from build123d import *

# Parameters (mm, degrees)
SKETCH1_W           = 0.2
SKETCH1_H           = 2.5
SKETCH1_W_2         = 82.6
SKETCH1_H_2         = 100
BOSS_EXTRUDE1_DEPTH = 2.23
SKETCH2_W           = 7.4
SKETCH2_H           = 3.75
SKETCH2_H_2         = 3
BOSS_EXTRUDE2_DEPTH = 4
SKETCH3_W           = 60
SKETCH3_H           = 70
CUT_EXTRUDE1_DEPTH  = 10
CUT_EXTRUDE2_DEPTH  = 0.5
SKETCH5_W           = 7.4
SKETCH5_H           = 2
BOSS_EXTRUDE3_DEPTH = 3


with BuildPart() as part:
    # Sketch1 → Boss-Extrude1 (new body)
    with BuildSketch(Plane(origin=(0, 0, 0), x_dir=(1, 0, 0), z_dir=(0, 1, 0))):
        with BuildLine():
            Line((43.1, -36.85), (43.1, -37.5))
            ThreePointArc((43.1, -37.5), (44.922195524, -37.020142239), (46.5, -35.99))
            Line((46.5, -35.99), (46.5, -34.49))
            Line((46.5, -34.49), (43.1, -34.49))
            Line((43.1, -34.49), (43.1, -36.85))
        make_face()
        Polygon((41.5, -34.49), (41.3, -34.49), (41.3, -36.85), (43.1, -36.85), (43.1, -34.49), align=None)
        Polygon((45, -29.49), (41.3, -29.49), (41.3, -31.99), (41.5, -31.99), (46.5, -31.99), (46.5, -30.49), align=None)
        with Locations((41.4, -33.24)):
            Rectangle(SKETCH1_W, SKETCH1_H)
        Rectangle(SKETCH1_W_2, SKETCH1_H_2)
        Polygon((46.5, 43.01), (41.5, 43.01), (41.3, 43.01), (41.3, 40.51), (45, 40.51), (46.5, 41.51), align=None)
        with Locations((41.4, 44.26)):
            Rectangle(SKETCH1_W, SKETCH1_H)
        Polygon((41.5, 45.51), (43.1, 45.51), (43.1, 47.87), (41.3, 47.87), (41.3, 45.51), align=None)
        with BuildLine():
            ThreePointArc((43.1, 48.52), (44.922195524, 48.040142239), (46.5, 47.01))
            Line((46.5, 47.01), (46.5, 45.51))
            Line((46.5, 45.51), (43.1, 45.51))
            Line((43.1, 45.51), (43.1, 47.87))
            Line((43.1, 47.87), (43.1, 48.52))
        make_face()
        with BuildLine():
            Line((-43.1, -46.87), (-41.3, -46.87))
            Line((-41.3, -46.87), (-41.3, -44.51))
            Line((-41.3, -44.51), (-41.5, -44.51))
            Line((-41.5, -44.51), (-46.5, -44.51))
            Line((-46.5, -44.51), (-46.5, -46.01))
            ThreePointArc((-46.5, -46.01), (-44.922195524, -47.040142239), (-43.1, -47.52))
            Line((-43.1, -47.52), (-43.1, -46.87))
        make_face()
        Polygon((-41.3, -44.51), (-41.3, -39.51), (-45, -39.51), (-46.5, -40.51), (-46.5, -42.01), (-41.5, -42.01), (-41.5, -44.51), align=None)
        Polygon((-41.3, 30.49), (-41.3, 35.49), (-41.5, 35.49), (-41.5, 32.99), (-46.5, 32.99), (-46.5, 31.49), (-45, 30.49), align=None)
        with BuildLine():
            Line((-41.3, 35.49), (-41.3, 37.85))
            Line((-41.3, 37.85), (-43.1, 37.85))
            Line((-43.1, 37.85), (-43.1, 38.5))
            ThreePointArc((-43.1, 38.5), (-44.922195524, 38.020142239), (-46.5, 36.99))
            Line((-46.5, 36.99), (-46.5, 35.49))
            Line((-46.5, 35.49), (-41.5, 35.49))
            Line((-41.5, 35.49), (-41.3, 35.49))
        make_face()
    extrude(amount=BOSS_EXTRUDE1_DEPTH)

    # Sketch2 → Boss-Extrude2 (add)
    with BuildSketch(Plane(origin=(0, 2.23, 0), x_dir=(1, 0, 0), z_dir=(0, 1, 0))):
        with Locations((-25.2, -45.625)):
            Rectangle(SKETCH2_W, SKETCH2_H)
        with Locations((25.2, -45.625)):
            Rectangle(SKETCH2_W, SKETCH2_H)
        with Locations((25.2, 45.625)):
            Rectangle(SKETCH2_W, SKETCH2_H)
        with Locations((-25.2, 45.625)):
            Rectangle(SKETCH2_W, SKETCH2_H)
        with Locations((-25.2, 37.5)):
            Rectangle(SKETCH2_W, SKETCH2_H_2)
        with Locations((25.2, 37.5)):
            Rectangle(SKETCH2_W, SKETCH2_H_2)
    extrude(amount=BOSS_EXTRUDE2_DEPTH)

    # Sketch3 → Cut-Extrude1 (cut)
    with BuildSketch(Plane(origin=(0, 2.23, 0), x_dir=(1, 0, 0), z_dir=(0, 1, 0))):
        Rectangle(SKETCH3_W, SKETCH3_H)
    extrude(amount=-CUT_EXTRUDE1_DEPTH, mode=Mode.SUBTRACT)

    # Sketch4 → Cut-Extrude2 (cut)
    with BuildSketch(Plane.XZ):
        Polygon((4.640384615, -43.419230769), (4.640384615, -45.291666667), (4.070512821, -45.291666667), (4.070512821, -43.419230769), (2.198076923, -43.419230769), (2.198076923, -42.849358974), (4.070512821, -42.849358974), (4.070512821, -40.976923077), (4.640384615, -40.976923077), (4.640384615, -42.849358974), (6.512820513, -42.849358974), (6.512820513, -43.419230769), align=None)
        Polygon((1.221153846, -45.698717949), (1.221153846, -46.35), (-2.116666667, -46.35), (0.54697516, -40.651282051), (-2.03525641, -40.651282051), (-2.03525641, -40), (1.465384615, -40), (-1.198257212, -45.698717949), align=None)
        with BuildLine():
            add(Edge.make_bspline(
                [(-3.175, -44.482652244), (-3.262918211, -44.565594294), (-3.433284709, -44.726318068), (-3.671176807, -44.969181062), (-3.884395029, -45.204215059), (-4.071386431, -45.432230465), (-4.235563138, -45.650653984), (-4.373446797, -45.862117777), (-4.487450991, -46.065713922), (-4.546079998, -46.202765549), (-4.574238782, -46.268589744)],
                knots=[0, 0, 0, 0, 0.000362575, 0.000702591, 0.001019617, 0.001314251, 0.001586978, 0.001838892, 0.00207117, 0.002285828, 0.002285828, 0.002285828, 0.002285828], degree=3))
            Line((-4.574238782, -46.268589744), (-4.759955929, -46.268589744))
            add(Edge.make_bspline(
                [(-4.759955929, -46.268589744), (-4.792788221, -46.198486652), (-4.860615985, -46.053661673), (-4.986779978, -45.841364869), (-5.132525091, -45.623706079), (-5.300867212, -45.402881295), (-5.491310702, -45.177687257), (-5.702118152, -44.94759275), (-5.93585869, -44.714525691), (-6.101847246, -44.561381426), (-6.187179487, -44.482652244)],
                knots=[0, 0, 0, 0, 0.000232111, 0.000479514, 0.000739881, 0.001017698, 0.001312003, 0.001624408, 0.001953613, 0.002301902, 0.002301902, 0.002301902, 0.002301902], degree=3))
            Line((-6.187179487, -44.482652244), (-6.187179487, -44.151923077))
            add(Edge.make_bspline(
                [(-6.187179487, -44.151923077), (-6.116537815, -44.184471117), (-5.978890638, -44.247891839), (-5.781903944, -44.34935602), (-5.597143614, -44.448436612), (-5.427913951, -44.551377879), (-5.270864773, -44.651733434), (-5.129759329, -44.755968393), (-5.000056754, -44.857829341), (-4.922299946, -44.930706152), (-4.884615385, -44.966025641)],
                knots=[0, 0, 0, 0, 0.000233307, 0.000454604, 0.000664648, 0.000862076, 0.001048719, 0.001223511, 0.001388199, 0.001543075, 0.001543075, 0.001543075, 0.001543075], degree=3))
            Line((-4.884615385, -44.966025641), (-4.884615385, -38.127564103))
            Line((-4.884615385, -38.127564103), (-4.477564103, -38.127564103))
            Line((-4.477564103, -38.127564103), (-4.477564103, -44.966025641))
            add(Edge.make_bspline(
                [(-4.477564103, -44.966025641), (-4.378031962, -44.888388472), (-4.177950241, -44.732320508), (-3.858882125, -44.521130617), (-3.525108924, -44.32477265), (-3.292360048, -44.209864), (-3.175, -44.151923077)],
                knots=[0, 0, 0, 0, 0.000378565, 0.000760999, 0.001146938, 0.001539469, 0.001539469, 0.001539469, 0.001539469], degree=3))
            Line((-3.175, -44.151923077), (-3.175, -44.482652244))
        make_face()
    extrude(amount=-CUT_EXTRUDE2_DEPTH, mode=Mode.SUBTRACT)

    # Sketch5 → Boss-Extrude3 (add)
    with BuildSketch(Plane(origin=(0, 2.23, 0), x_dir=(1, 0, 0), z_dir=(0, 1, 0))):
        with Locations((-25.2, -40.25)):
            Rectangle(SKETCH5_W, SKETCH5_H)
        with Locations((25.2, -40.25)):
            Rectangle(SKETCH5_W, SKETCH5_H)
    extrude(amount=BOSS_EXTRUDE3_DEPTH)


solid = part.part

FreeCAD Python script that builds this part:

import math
import FreeCAD as App
import Part
import Sketcher

V = App.Vector
Q = App.Units.Quantity

doc = App.newDocument("Part")
body = doc.addObject("PartDesign::Body", "Body")

sketch1 = doc.addObject("Sketcher::SketchObject", "Sketch")
body.addObject(sketch1)
sketch1.AttachmentSupport = (doc.XZ_Plane, [""])
sketch1.MapMode = "FlatFace"
sketch1.addGeometry(Part.ArcOfCircle(Part.Circle(V(42.5, 31.6, 0), V(0, 0, 1), 5.9), math.radians(48), math.radians(84)), False)
sketch1.addGeometry(Part.LineSegment(V(46.5, 36, 0), V(46.5, 34.5, 0)), False)
sketch1.addGeometry(Part.LineSegment(V(46.5, 34.5, 0), V(41.5, 34.5, 0)), False)
sketch1.addGeometry(Part.LineSegment(V(41.5, 34.5, 0), V(41.5, 32, 0)), False)
sketch1.addGeometry(Part.LineSegment(V(41.5, 32, 0), V(46.5, 32, 0)), False)
sketch1.addGeometry(Part.LineSegment(V(46.5, 32, 0), V(46.5, 30.5, 0)), False)
sketch1.addGeometry(Part.LineSegment(V(46.5, 30.5, 0), V(45, 29.5, 0)), False)
sketch1.addGeometry(Part.LineSegment(V(45, 29.5, 0), V(41.3, 29.5, 0)), False)
sketch1.addGeometry(Part.LineSegment(V(41.3, 29.5, 0), V(41.3, -40.5, 0)), False)
sketch1.addGeometry(Part.LineSegment(V(41.3, -40.5, 0), V(45, -40.5, 0)), False)
sketch1.addGeometry(Part.LineSegment(V(45, -40.5, 0), V(46.5, -41.5, 0)), False)
sketch1.addGeometry(Part.LineSegment(V(46.5, -41.5, 0), V(46.5, -43, 0)), False)
sketch1.addGeometry(Part.LineSegment(V(46.5, -43, 0), V(41.5, -43, 0)), False)
sketch1.addGeometry(Part.LineSegment(V(41.5, -43, 0), V(41.5, -45.5, 0)), False)
sketch1.addGeometry(Part.LineSegment(V(41.5, -45.5, 0), V(46.5, -45.5, 0)), False)
sketch1.addGeometry(Part.LineSegment(V(46.5, -45.5, 0), V(46.5, -47, 0)), False)
sketch1.addGeometry(Part.ArcOfCircle(Part.Circle(V(42.5, -42.7, 0), V(0, 0, 1), 5.9), math.radians(-84), math.radians(-48)), False)
sketch1.addGeometry(Part.LineSegment(V(43.1, -48.5, 0), V(43.1, -47.9, 0)), False)
sketch1.addGeometry(Part.LineSegment(V(43.1, -47.9, 0), V(41.3, -47.9, 0)), False)
sketch1.addGeometry(Part.LineSegment(V(41.3, -47.9, 0), V(41.3, -50, 0)), False)
sketch1.addGeometry(Part.LineSegment(V(41.3, -50, 0), V(-41.3, -50, 0)), False)
sketch1.addGeometry(Part.LineSegment(V(-41.3, -50, 0), V(-41.3, -37.9, 0)), False)
sketch1.addGeometry(Part.LineSegment(V(-41.3, -37.9, 0), V(-43.1, -37.9, 0)), False)
sketch1.addGeometry(Part.LineSegment(V(-43.1, -37.9, 0), V(-43.1, -38.5, 0)), False)
sketch1.addGeometry(Part.ArcOfCircle(Part.Circle(V(-42.5, -32.6, 0), V(0, 0, 1), 5.9), math.radians(-132), math.radians(-96)), False)
sketch1.addGeometry(Part.LineSegment(V(-46.5, -37, 0), V(-46.5, -35.5, 0)), False)
sketch1.addGeometry(Part.LineSegment(V(-46.5, -35.5, 0), V(-41.5, -35.5, 0)), False)
sketch1.addGeometry(Part.LineSegment(V(-41.5, -35.5, 0), V(-41.5, -33, 0)), False)
sketch1.addGeometry(Part.LineSegment(V(-41.5, -33, 0), V(-46.5, -33, 0)), False)
sketch1.addGeometry(Part.LineSegment(V(-46.5, -33, 0), V(-46.5, -31.5, 0)), False)
sketch1.addGeometry(Part.LineSegment(V(-46.5, -31.5, 0), V(-45, -30.5, 0)), False)
sketch1.addGeometry(Part.LineSegment(V(-45, -30.5, 0), V(-41.3, -30.5, 0)), False)
sketch1.addGeometry(Part.LineSegment(V(-41.3, -30.5, 0), V(-41.3, 39.5, 0)), False)
sketch1.addGeometry(Part.LineSegment(V(-41.3, 39.5, 0), V(-45, 39.5, 0)), False)
sketch1.addGeometry(Part.LineSegment(V(-45, 39.5, 0), V(-46.5, 40.5, 0)), False)
sketch1.addGeometry(Part.LineSegment(V(-46.5, 40.5, 0), V(-46.5, 42, 0)), False)
sketch1.addGeometry(Part.LineSegment(V(-46.5, 42, 0), V(-41.5, 42, 0)), False)
sketch1.addGeometry(Part.LineSegment(V(-41.5, 42, 0), V(-41.5, 44.5, 0)), False)
sketch1.addGeometry(Part.LineSegment(V(-41.5, 44.5, 0), V(-46.5, 44.5, 0)), False)
sketch1.addGeometry(Part.LineSegment(V(-46.5, 44.5, 0), V(-46.5, 46, 0)), False)
sketch1.addGeometry(Part.ArcOfCircle(Part.Circle(V(-42.5, 41.7, 0), V(0, 0, 1), 5.9), math.radians(96), math.radians(132)), False)
sketch1.addGeometry(Part.LineSegment(V(-43.1, 47.5, 0), V(-43.1, 46.9, 0)), False)
sketch1.addGeometry(Part.LineSegment(V(-43.1, 46.9, 0), V(-41.3, 46.9, 0)), False)
sketch1.addGeometry(Part.LineSegment(V(-41.3, 46.9, 0), V(-41.3, 50, 0)), False)
sketch1.addGeometry(Part.LineSegment(V(-41.3, 50, 0), V(41.3, 50, 0)), False)
sketch1.addGeometry(Part.LineSegment(V(41.3, 50, 0), V(41.3, 36.9, 0)), False)
sketch1.addGeometry(Part.LineSegment(V(41.3, 36.9, 0), V(43.1, 36.9, 0)), False)
sketch1.addGeometry(Part.LineSegment(V(43.1, 36.9, 0), V(43.1, 37.5, 0)), False)
sketch1.addConstraint(Sketcher.Constraint("Coincident", 0, 1, 1, 1))
sketch1.addConstraint(Sketcher.Constraint("Coincident", 1, 2, 2, 1))
sketch1.addConstraint(Sketcher.Constraint("Coincident", 2, 2, 3, 1))
sketch1.addConstraint(Sketcher.Constraint("Coincident", 3, 2, 4, 1))
sketch1.addConstraint(Sketcher.Constraint("Coincident", 4, 2, 5, 1))
sketch1.addConstraint(Sketcher.Constraint("Coincident", 5, 2, 6, 1))
sketch1.addConstraint(Sketcher.Constraint("Coincident", 6, 2, 7, 1))
sketch1.addConstraint(Sketcher.Constraint("Coincident", 7, 2, 8, 1))
sketch1.addConstraint(Sketcher.Constraint("Coincident", 8, 2, 9, 1))
sketch1.addConstraint(Sketcher.Constraint("Coincident", 9, 2, 10, 1))
sketch1.addConstraint(Sketcher.Constraint("Coincident", 10, 2, 11, 1))
sketch1.addConstraint(Sketcher.Constraint("Coincident", 11, 2, 12, 1))
sketch1.addConstraint(Sketcher.Constraint("Coincident", 12, 2, 13, 1))
sketch1.addConstraint(Sketcher.Constraint("Coincident", 13, 2, 14, 1))
sketch1.addConstraint(Sketcher.Constraint("Coincident", 14, 2, 15, 1))
sketch1.addConstraint(Sketcher.Constraint("Coincident", 15, 2, 16, 2))
sketch1.addConstraint(Sketcher.Constraint("Coincident", 16, 1, 17, 1))
sketch1.addConstraint(Sketcher.Constraint("Coincident", 17, 2, 18, 1))
sketch1.addConstraint(Sketcher.Constraint("Coincident", 18, 2, 19, 1))
sketch1.addConstraint(Sketcher.Constraint("Coincident", 19, 2, 20, 1))
sketch1.addConstraint(Sketcher.Constraint("Coincident", 20, 2, 21, 1))
sketch1.addConstraint(Sketcher.Constraint("Coincident", 21, 2, 22, 1))
sketch1.addConstraint(Sketcher.Constraint("Coincident", 22, 2, 23, 1))
sketch1.addConstraint(Sketcher.Constraint("Coincident", 23, 2, 24, 2))
sketch1.addConstraint(Sketcher.Constraint("Coincident", 24, 1, 25, 1))
sketch1.addConstraint(Sketcher.Constraint("Coincident", 25, 2, 26, 1))
sketch1.addConstraint(Sketcher.Constraint("Coincident", 26, 2, 27, 1))
sketch1.addConstraint(Sketcher.Constraint("Coincident", 27, 2, 28, 1))
sketch1.addConstraint(Sketcher.Constraint("Coincident", 28, 2, 29, 1))
sketch1.addConstraint(Sketcher.Constraint("Coincident", 29, 2, 30, 1))
sketch1.addConstraint(Sketcher.Constraint("Coincident", 30, 2, 31, 1))
sketch1.addConstraint(Sketcher.Constraint("Coincident", 31, 2, 32, 1))
sketch1.addConstraint(Sketcher.Constraint("Coincident", 32, 2, 33, 1))
sketch1.addConstraint(Sketcher.Constraint("Coincident", 33, 2, 34, 1))
sketch1.addConstraint(Sketcher.Constraint("Coincident", 34, 2, 35, 1))
sketch1.addConstraint(Sketcher.Constraint("Coincident", 35, 2, 36, 1))
sketch1.addConstraint(Sketcher.Constraint("Coincident", 36, 2, 37, 1))
sketch1.addConstraint(Sketcher.Constraint("Coincident", 37, 2, 38, 1))
sketch1.addConstraint(Sketcher.Constraint("Coincident", 38, 2, 39, 1))
sketch1.addConstraint(Sketcher.Constraint("Coincident", 39, 2, 40, 2))
sketch1.addConstraint(Sketcher.Constraint("Coincident", 40, 1, 41, 1))
sketch1.addConstraint(Sketcher.Constraint("Coincident", 41, 2, 42, 1))
sketch1.addConstraint(Sketcher.Constraint("Coincident", 42, 2, 43, 1))
sketch1.addConstraint(Sketcher.Constraint("Coincident", 43, 2, 44, 1))
sketch1.addConstraint(Sketcher.Constraint("Coincident", 44, 2, 45, 1))
sketch1.addConstraint(Sketcher.Constraint("Coincident", 45, 2, 46, 1))
sketch1.addConstraint(Sketcher.Constraint("Coincident", 46, 2, 47, 1))
sketch1.addConstraint(Sketcher.Constraint("Coincident", 47, 2, 0, 2))
sketch1.addConstraint(Sketcher.Constraint("Vertical", 1))
sketch1.addConstraint(Sketcher.Constraint("Horizontal", 2))
sketch1.addConstraint(Sketcher.Constraint("Vertical", 3))
sketch1.addConstraint(Sketcher.Constraint("Horizontal", 4))
sketch1.addConstraint(Sketcher.Constraint("Vertical", 5))
sketch1.addConstraint(Sketcher.Constraint("Horizontal", 7))
sketch1.addConstraint(Sketcher.Constraint("Vertical", 8))
sketch1.addConstraint(Sketcher.Constraint("Horizontal", 9))
sketch1.addConstraint(Sketcher.Constraint("Vertical", 11))
sketch1.addConstraint(Sketcher.Constraint("Horizontal", 12))
sketch1.addConstraint(Sketcher.Constraint("Vertical", 13))
sketch1.addConstraint(Sketcher.Constraint("Horizontal", 14))
sketch1.addConstraint(Sketcher.Constraint("Vertical", 15))
sketch1.addConstraint(Sketcher.Constraint("Vertical", 17))
sketch1.addConstraint(Sketcher.Constraint("Horizontal", 18))
sketch1.addConstraint(Sketcher.Constraint("Vertical", 19))
sketch1.addConstraint(Sketcher.Constraint("Horizontal", 20))
sketch1.addConstraint(Sketcher.Constraint("Vertical", 21))
sketch1.addConstraint(Sketcher.Constraint("Horizontal", 22))
sketch1.addConstraint(Sketcher.Constraint("Vertical", 23))
sketch1.addConstraint(Sketcher.Constraint("Vertical", 25))
sketch1.addConstraint(Sketcher.Constraint("Horizontal", 26))
sketch1.addConstraint(Sketcher.Constraint("Vertical", 27))
sketch1.addConstraint(Sketcher.Constraint("Horizontal", 28))
sketch1.addConstraint(Sketcher.Constraint("Vertical", 29))
sketch1.addConstraint(Sketcher.Constraint("Horizontal", 31))
sketch1.addConstraint(Sketcher.Constraint("Vertical", 32))
sketch1.addConstraint(Sketcher.Constraint("Horizontal", 33))
sketch1.addConstraint(Sketcher.Constraint("Vertical", 35))
sketch1.addConstraint(Sketcher.Constraint("Horizontal", 36))
sketch1.addConstraint(Sketcher.Constraint("Vertical", 37))
sketch1.addConstraint(Sketcher.Constraint("Horizontal", 38))
sketch1.addConstraint(Sketcher.Constraint("Vertical", 39))
sketch1.addConstraint(Sketcher.Constraint("Vertical", 41))
sketch1.addConstraint(Sketcher.Constraint("Horizontal", 42))
sketch1.addConstraint(Sketcher.Constraint("Vertical", 43))
sketch1.addConstraint(Sketcher.Constraint("Horizontal", 44))
sketch1.addConstraint(Sketcher.Constraint("Vertical", 45))
sketch1.addConstraint(Sketcher.Constraint("Horizontal", 46))
sketch1.addConstraint(Sketcher.Constraint("Vertical", 47))
sketch1.addConstraint(Sketcher.Constraint("Equal", 0, 16))
sketch1.addConstraint(Sketcher.Constraint("Equal", 16, 24))
sketch1.addConstraint(Sketcher.Constraint("Equal", 24, 40))
sketch1.addConstraint(Sketcher.Constraint("Symmetric", 19, 2, 43, 2, -1, 1))
sketch1.addConstraint(Sketcher.Constraint("Parallel", 6, 30))
sketch1.addConstraint(Sketcher.Constraint("Parallel", 10, 34))
sketch1.addConstraint(Sketcher.Constraint("Vertical", 0, 3, 16, 3))
sketch1.addConstraint(Sketcher.Constraint("Vertical", 24, 3, 40, 3))
sketch1.addConstraint(Sketcher.Constraint("Vertical", 1, 2, 4, 2))
sketch1.addConstraint(Sketcher.Constraint("Vertical", 6, 2, 9, 2))
sketch1.addConstraint(Sketcher.Constraint("Vertical", 5, 2, 10, 2))
sketch1.addConstraint(Sketcher.Constraint("Vertical", 3, 2, 12, 2))
sketch1.addConstraint(Sketcher.Constraint("Vertical", 11, 2, 14, 2))
sketch1.addConstraint(Sketcher.Constraint("Vertical", 8, 2, 18, 2))
sketch1.addConstraint(Sketcher.Constraint("Vertical", 25, 2, 28, 2))
sketch1.addConstraint(Sketcher.Constraint("Vertical", 21, 2, 31, 2))
sketch1.addConstraint(Sketcher.Constraint("Vertical", 30, 2, 33, 2))
sketch1.addConstraint(Sketcher.Constraint("Vertical", 29, 2, 34, 2))
sketch1.addConstraint(Sketcher.Constraint("Vertical", 27, 2, 36, 2))
sketch1.addConstraint(Sketcher.Constraint("Vertical", 35, 2, 38, 2))
sketch1.addConstraint(Sketcher.Constraint("Vertical", 23, 2, 40, 1))
sketch1.addConstraint(Sketcher.Constraint("Vertical", 32, 2, 42, 2))
sketch1.addConstraint(Sketcher.Constraint("Vertical", 19, 2, 44, 2))
sketch1.addConstraint(Sketcher.Constraint("Vertical", 17, 2, 46, 2))
sketch1.addConstraint(Sketcher.Constraint("Equal", 18, 22))
sketch1.addConstraint(Sketcher.Constraint("Equal", 14, 26))
sketch1.addConstraint(Sketcher.Constraint("Equal", 9, 31))
sketch1.addConstraint(Sketcher.Constraint("Equal", 1, 5))
sketch1.addConstraint(Sketcher.Constraint("Equal", 5, 11))
sketch1.addConstraint(Sketcher.Constraint("Equal", 3, 13))
sketch1.addConstraint(Sketcher.Constraint("Equal", 11, 15))
sketch1.addConstraint(Sketcher.Constraint("Equal", 17, 23))
sketch1.addConstraint(Sketcher.Constraint("Equal", 15, 25))
sketch1.addConstraint(Sketcher.Constraint("Equal", 13, 27))
sketch1.addConstraint(Sketcher.Constraint("Equal", 25, 29))
sketch1.addConstraint(Sketcher.Constraint("Equal", 8, 32))
sketch1.addConstraint(Sketcher.Constraint("Equal", 29, 35))
sketch1.addConstraint(Sketcher.Constraint("Equal", 27, 37))
sketch1.addConstraint(Sketcher.Constraint("Equal", 35, 39))
sketch1.addConstraint(Sketcher.Constraint("Equal", 23, 41))
sketch1.addConstraint(Sketcher.Constraint("Equal", 41, 47))
sketch1.addConstraint(Sketcher.Constraint("Equal", 6, 10))
sketch1.addConstraint(Sketcher.Constraint("Equal", 10, 30))
sketch1.addConstraint(Sketcher.Constraint("DistanceX", 2, 2, 2, 1, Q("5 mm")))
sketch1.addConstraint(Sketcher.Constraint("DistanceY", 8, 2, 8, 1, Q("70 mm")))
sketch1.addConstraint(Sketcher.Constraint("DistanceX", 7, 2, 7, 1, Q("3.7 mm")))
sketch1.addConstraint(Sketcher.Constraint("DistanceX", 18, 2, 18, 1, Q("1.8 mm")))
sketch1.addConstraint(Sketcher.Constraint("DistanceX", 20, 2, 20, 1, Q("82.6 mm")))
sketch1.addConstraint(Sketcher.Constraint("DistanceY", 1, 2, 1, 1, Q("1.5 mm")))
sketch1.addConstraint(Sketcher.Constraint("DistanceY", 3, 2, 3, 1, Q("2.5 mm")))
sketch1.addConstraint(Sketcher.Constraint("DistanceY", 19, 2, -1, 1, Q("50 mm")))
sketch1.addConstraint(Sketcher.Constraint("Radius", 0, Q("5.897 mm")))
sketch1.addConstraint(Sketcher.Constraint("DistanceY", 6, 2, 5, 2, Q("1 mm")))
sketch1.addConstraint(Sketcher.Constraint("DistanceY", 17, 1, 17, 2, Q("0.65 mm")))
sketch1.addConstraint(Sketcher.Constraint("DistanceY", 19, 2, 19, 1, Q("2.13 mm")))
sketch1.addConstraint(Sketcher.Constraint("DistanceY", 21, 1, 21, 2, Q("12.15 mm")))
sketch1.addConstraint(Sketcher.Constraint("DistanceY", 43, 1, 43, 2, Q("3.13 mm")))
sketch1.addConstraint(Sketcher.Constraint("DistanceY", 45, 2, 45, 1, Q("13.15 mm")))
sketch1.addConstraint(Sketcher.Constraint("DistanceX", -1, 1, 0, 1, Q("46.5 mm")))
pad1 = doc.addObject("PartDesign::Pad", "Pad")
body.addObject(pad1)
pad1.Profile = sketch1
pad1.Length = 2.23
pad1.Reversed = True

sketch2 = doc.addObject("Sketcher::SketchObject", "Sketch001")
body.addObject(sketch2)
sketch2.AttachmentSupport = (doc.XZ_Plane, [""])
sketch2.MapMode = "FlatFace"
sketch2.AttachmentOffset = App.Placement(V(0, 0, -2.23), App.Rotation())
sketch2.addGeometry(Part.LineSegment(V(-28.9, 43.8, 0), V(-28.9, 47.5, 0)), False)
sketch2.addGeometry(Part.LineSegment(V(-28.9, 47.5, 0), V(-21.5, 47.5, 0)), False)
sketch2.addGeometry(Part.LineSegment(V(-21.5, 47.5, 0), V(-21.5, 43.8, 0)), False)
sketch2.addGeometry(Part.LineSegment(V(-21.5, 43.8, 0), V(-28.9, 43.8, 0)), False)
sketch2.addGeometry(Part.LineSegment(V(21.5, 43.8, 0), V(21.5, 47.5, 0)), False)
sketch2.addGeometry(Part.LineSegment(V(21.5, 47.5, 0), V(28.9, 47.5, 0)), False)
sketch2.addGeometry(Part.LineSegment(V(28.9, 47.5, 0), V(28.9, 43.8, 0)), False)
sketch2.addGeometry(Part.LineSegment(V(28.9, 43.8, 0), V(21.5, 43.8, 0)), False)
sketch2.addGeometry(Part.LineSegment(V(21.5, -47.5, 0), V(21.5, -43.8, 0)), False)
sketch2.addGeometry(Part.LineSegment(V(21.5, -43.8, 0), V(28.9, -43.8, 0)), False)
sketch2.addGeometry(Part.LineSegment(V(28.9, -43.8, 0), V(28.9, -47.5, 0)), False)
sketch2.addGeometry(Part.LineSegment(V(28.9, -47.5, 0), V(21.5, -47.5, 0)), False)
sketch2.addGeometry(Part.LineSegment(V(-28.9, -47.5, 0), V(-28.9, -43.8, 0)), False)
sketch2.addGeometry(Part.LineSegment(V(-28.9, -43.8, 0), V(-21.5, -43.8, 0)), False)
sketch2.addGeometry(Part.LineSegment(V(-21.5, -43.8, 0), V(-21.5, -47.5, 0)), False)
sketch2.addGeometry(Part.LineSegment(V(-21.5, -47.5, 0), V(-28.9, -47.5, 0)), False)
sketch2.addGeometry(Part.LineSegment(V(-28.9, -39, 0), V(-28.9, -36, 0)), False)
sketch2.addGeometry(Part.LineSegment(V(-28.9, -36, 0), V(-21.5, -36, 0)), False)
sketch2.addGeometry(Part.LineSegment(V(-21.5, -36, 0), V(-21.5, -39, 0)), False)
sketch2.addGeometry(Part.LineSegment(V(-21.5, -39, 0), V(-28.9, -39, 0)), False)
sketch2.addGeometry(Part.LineSegment(V(21.5, -39, 0), V(21.5, -36, 0)), False)
sketch2.addGeometry(Part.LineSegment(V(21.5, -36, 0), V(28.9, -36, 0)), False)
sketch2.addGeometry(Part.LineSegment(V(28.9, -36, 0), V(28.9, -39, 0)), False)
sketch2.addGeometry(Part.LineSegment(V(28.9, -39, 0), V(21.5, -39, 0)), False)
sketch2.addConstraint(Sketcher.Constraint("Coincident", 0, 2, 1, 1))
sketch2.addConstraint(Sketcher.Constraint("Coincident", 1, 2, 2, 1))
sketch2.addConstraint(Sketcher.Constraint("Coincident", 2, 2, 3, 1))
sketch2.addConstraint(Sketcher.Constraint("Coincident", 3, 2, 0, 1))
sketch2.addConstraint(Sketcher.Constraint("Coincident", 4, 2, 5, 1))
sketch2.addConstraint(Sketcher.Constraint("Coincident", 5, 2, 6, 1))
sketch2.addConstraint(Sketcher.Constraint("Coincident", 6, 2, 7, 1))
sketch2.addConstraint(Sketcher.Constraint("Coincident", 7, 2, 4, 1))
sketch2.addConstraint(Sketcher.Constraint("Coincident", 8, 2, 9, 1))
sketch2.addConstraint(Sketcher.Constraint("Coincident", 9, 2, 10, 1))
sketch2.addConstraint(Sketcher.Constraint("Coincident", 10, 2, 11, 1))
sketch2.addConstraint(Sketcher.Constraint("Coincident", 11, 2, 8, 1))
sketch2.addConstraint(Sketcher.Constraint("Coincident", 12, 2, 13, 1))
sketch2.addConstraint(Sketcher.Constraint("Coincident", 13, 2, 14, 1))
sketch2.addConstraint(Sketcher.Constraint("Coincident", 14, 2, 15, 1))
sketch2.addConstraint(Sketcher.Constraint("Coincident", 15, 2, 12, 1))
sketch2.addConstraint(Sketcher.Constraint("Coincident", 16, 2, 17, 1))
sketch2.addConstraint(Sketcher.Constraint("Coincident", 17, 2, 18, 1))
sketch2.addConstraint(Sketcher.Constraint("Coincident", 18, 2, 19, 1))
sketch2.addConstraint(Sketcher.Constraint("Coincident", 19, 2, 16, 1))
sketch2.addConstraint(Sketcher.Constraint("Coincident", 20, 2, 21, 1))
sketch2.addConstraint(Sketcher.Constraint("Coincident", 21, 2, 22, 1))
sketch2.addConstraint(Sketcher.Constraint("Coincident", 22, 2, 23, 1))
sketch2.addConstraint(Sketcher.Constraint("Coincident", 23, 2, 20, 1))
sketch2.addConstraint(Sketcher.Constraint("Vertical", 0))
sketch2.addConstraint(Sketcher.Constraint("Horizontal", 1))
sketch2.addConstraint(Sketcher.Constraint("Vertical", 2))
sketch2.addConstraint(Sketcher.Constraint("Horizontal", 3))
sketch2.addConstraint(Sketcher.Constraint("Vertical", 4))
sketch2.addConstraint(Sketcher.Constraint("Horizontal", 5))
sketch2.addConstraint(Sketcher.Constraint("Vertical", 6))
sketch2.addConstraint(Sketcher.Constraint("Horizontal", 7))
sketch2.addConstraint(Sketcher.Constraint("Vertical", 8))
sketch2.addConstraint(Sketcher.Constraint("Horizontal", 9))
sketch2.addConstraint(Sketcher.Constraint("Vertical", 10))
sketch2.addConstraint(Sketcher.Constraint("Horizontal", 11))
sketch2.addConstraint(Sketcher.Constraint("Vertical", 12))
sketch2.addConstraint(Sketcher.Constraint("Horizontal", 13))
sketch2.addConstraint(Sketcher.Constraint("Vertical", 14))
sketch2.addConstraint(Sketcher.Constraint("Horizontal", 15))
sketch2.addConstraint(Sketcher.Constraint("Vertical", 16))
sketch2.addConstraint(Sketcher.Constraint("Horizontal", 17))
sketch2.addConstraint(Sketcher.Constraint("Vertical", 18))
sketch2.addConstraint(Sketcher.Constraint("Horizontal", 19))
sketch2.addConstraint(Sketcher.Constraint("Vertical", 20))
sketch2.addConstraint(Sketcher.Constraint("Horizontal", 21))
sketch2.addConstraint(Sketcher.Constraint("Vertical", 22))
sketch2.addConstraint(Sketcher.Constraint("Horizontal", 23))
sketch2.addConstraint(Sketcher.Constraint("Symmetric", 2, 2, 8, 2, -1, 1))
sketch2.addConstraint(Sketcher.Constraint("Symmetric", 0, 2, 10, 2, -1, 1))
sketch2.addConstraint(Sketcher.Constraint("Symmetric", 6, 2, 12, 2, -1, 1))
sketch2.addConstraint(Sketcher.Constraint("Symmetric", 4, 2, 14, 2, -1, 1))
sketch2.addConstraint(Sketcher.Constraint("Symmetric", 1, 2, 4, 2, -2))
sketch2.addConstraint(Sketcher.Constraint("Symmetric", 3, 2, 6, 2, -2))
sketch2.addConstraint(Sketcher.Constraint("Symmetric", 17, 2, 20, 2, -2))
sketch2.addConstraint(Sketcher.Constraint("Symmetric", 19, 2, 22, 2, -2))
sketch2.addConstraint(Sketcher.Constraint("Vertical", 15, 2, 16, 2))
sketch2.addConstraint(Sketcher.Constraint("Vertical", 14, 2, 17, 2))
sketch2.addConstraint(Sketcher.Constraint("DistanceY", 16, 1, 16, 2, Q("3 mm")))
sketch2.addConstraint(Sketcher.Constraint("DistanceX", 1, 1, 1, 2, Q("7.4 mm")))
sketch2.addConstraint(Sketcher.Constraint("DistanceY", 16, 2, -1, 1, Q("36 mm")))
sketch2.addConstraint(Sketcher.Constraint("DistanceX", 1, 2, 4, 2, Q("43 mm")))
sketch2.addConstraint(Sketcher.Constraint("DistanceY", 10, 2, 5, 2, Q("95 mm")))
sketch2.addConstraint(Sketcher.Constraint("DistanceY", 0, 1, 0, 2, Q("3.75 mm")))
pad2 = doc.addObject("PartDesign::Pad", "Pad001")
body.addObject(pad2)
pad2.Profile = sketch2
pad2.Length = 4
pad2.Reversed = True

sketch3 = doc.addObject("Sketcher::SketchObject", "Sketch002")
body.addObject(sketch3)
sketch3.AttachmentSupport = (doc.XZ_Plane, [""])
sketch3.MapMode = "FlatFace"
sketch3.AttachmentOffset = App.Placement(V(0, 0, -2.23), App.Rotation())
sketch3.addGeometry(Part.LineSegment(V(-30, -35, 0), V(-30, 35, 0)), False)
sketch3.addGeometry(Part.LineSegment(V(-30, 35, 0), V(30, 35, 0)), False)
sketch3.addGeometry(Part.LineSegment(V(30, 35, 0), V(30, -35, 0)), False)
sketch3.addGeometry(Part.LineSegment(V(30, -35, 0), V(-30, -35, 0)), False)
sketch3.addConstraint(Sketcher.Constraint("Coincident", 0, 2, 1, 1))
sketch3.addConstraint(Sketcher.Constraint("Coincident", 1, 2, 2, 1))
sketch3.addConstraint(Sketcher.Constraint("Coincident", 2, 2, 3, 1))
sketch3.addConstraint(Sketcher.Constraint("Coincident", 3, 2, 0, 1))
sketch3.addConstraint(Sketcher.Constraint("Vertical", 0))
sketch3.addConstraint(Sketcher.Constraint("Horizontal", 1))
sketch3.addConstraint(Sketcher.Constraint("Vertical", 2))
sketch3.addConstraint(Sketcher.Constraint("Horizontal", 3))
sketch3.addConstraint(Sketcher.Constraint("Symmetric", 0, 2, 2, 2, -1, 1))
sketch3.addConstraint(Sketcher.Constraint("DistanceX", 1, 1, 1, 2, Q("60 mm")))
sketch3.addConstraint(Sketcher.Constraint("DistanceY", 0, 1, 0, 2, Q("70 mm")))
pocket1 = doc.addObject("PartDesign::Pocket", "Pocket")
body.addObject(pocket1)
pocket1.Profile = sketch3
pocket1.Length = 10
pocket1.Reversed = True

sketch4 = doc.addObject("Sketcher::SketchObject", "Sketch003")
body.addObject(sketch4)
sketch4.AttachmentSupport = (doc.XZ_Plane, [""])
sketch4.MapMode = "FlatFace"
sketch4.addGeometry(Part.LineSegment(V(4.640385, -45.291667, 0), V(4.640385, -43.419231, 0)), False)
sketch4.addGeometry(Part.LineSegment(V(4.640385, -43.419231, 0), V(6.512821, -43.419231, 0)), False)
sketch4.addGeometry(Part.LineSegment(V(6.512821, -43.419231, 0), V(6.512821, -42.849359, 0)), False)
sketch4.addGeometry(Part.LineSegment(V(6.512821, -42.849359, 0), V(4.640385, -42.849359, 0)), False)
sketch4.addGeometry(Part.LineSegment(V(4.640385, -42.849359, 0), V(4.640385, -40.976923, 0)), False)
sketch4.addGeometry(Part.LineSegment(V(4.640385, -40.976923, 0), V(4.070513, -40.976923, 0)), False)
sketch4.addGeometry(Part.LineSegment(V(4.070513, -40.976923, 0), V(4.070513, -42.849359, 0)), False)
sketch4.addGeometry(Part.LineSegment(V(4.070513, -42.849359, 0), V(2.198077, -42.849359, 0)), False)
sketch4.addGeometry(Part.LineSegment(V(2.198077, -42.849359, 0), V(2.198077, -43.419231, 0)), False)
sketch4.addGeometry(Part.LineSegment(V(2.198077, -43.419231, 0), V(4.070513, -43.419231, 0)), False)
sketch4.addGeometry(Part.LineSegment(V(4.070513, -43.419231, 0), V(4.070513, -45.291667, 0)), False)
sketch4.addGeometry(Part.LineSegment(V(4.070513, -45.291667, 0), V(4.640385, -45.291667, 0)), False)
sketch4.addGeometry(Part.LineSegment(V(1.221154, -46.35, 0), V(1.221154, -45.698718, 0)), False)
sketch4.addGeometry(Part.LineSegment(V(1.221154, -45.698718, 0), V(-1.198257, -45.698718, 0)), False)
sketch4.addGeometry(Part.LineSegment(V(-1.198257, -45.698718, 0), V(1.465385, -40, 0)), False)
sketch4.addGeometry(Part.LineSegment(V(1.465385, -40, 0), V(-2.035256, -40, 0)), False)
sketch4.addGeometry(Part.LineSegment(V(-2.035256, -40, 0), V(-2.035256, -40.651282, 0)), False)
sketch4.addGeometry(Part.LineSegment(V(-2.035256, -40.651282, 0), V(0.546975, -40.651282, 0)), False)
sketch4.addGeometry(Part.LineSegment(V(0.546975, -40.651282, 0), V(-2.116667, -46.35, 0)), False)
sketch4.addGeometry(Part.LineSegment(V(-2.116667, -46.35, 0), V(1.221154, -46.35, 0)), False)
sketch4.addGeometry(Part.BSplineCurve([V(-3.175, -44.482652, 0), V(-3.262918, -44.565594, 0), V(-3.433285, -44.726318, 0), V(-3.671177, -44.969181, 0), V(-3.884395, -45.204215, 0), V(-4.071386, -45.43223, 0), V(-4.235563, -45.650654, 0), V(-4.373447, -45.862118, 0), V(-4.487451, -46.065714, 0), V(-4.54608, -46.202766, 0), V(-4.574239, -46.26859, 0)], [4, 1, 1, 1, 1, 1, 1, 1, 4], [0, 0.000362575, 0.000702591, 0.001019617, 0.001314251, 0.001586978, 0.001838892, 0.00207117, 0.002285828], False, 3, [1, 1, 1, 1, 1, 1, 1, 1, 1, 1, 1], False), False)
sketch4.addGeometry(Part.LineSegment(V(-3.175, -44.482652, 0), V(-3.175, -44.151923, 0)), False)
sketch4.addGeometry(Part.BSplineCurve([V(-4.477564, -44.966026, 0), V(-4.378032, -44.888388, 0), V(-4.17795, -44.732321, 0), V(-3.858882, -44.521131, 0), V(-3.525109, -44.324773, 0), V(-3.29236, -44.209864, 0), V(-3.175, -44.151923, 0)], [4, 1, 1, 1, 4], [0, 0.000378565, 0.000760999, 0.001146938, 0.001539469], False, 3, [1, 1, 1, 1, 1, 1, 1], False), False)
sketch4.addGeometry(Part.LineSegment(V(-4.477564, -44.966026, 0), V(-4.477564, -38.127564, 0)), False)
sketch4.addGeometry(Part.LineSegment(V(-4.477564, -38.127564, 0), V(-4.884615, -38.127564, 0)), False)
sketch4.addGeometry(Part.LineSegment(V(-4.884615, -38.127564, 0), V(-4.884615, -44.966026, 0)), False)
sketch4.addGeometry(Part.BSplineCurve([V(-6.187179, -44.151923, 0), V(-6.116538, -44.184471, 0), V(-5.978891, -44.247892, 0), V(-5.781904, -44.349356, 0), V(-5.597144, -44.448437, 0), V(-5.427914, -44.551378, 0), V(-5.270865, -44.651733, 0), V(-5.129759, -44.755968, 0), V(-5.000057, -44.857829, 0), V(-4.9223, -44.930706, 0), V(-4.884615, -44.966026, 0)], [4, 1, 1, 1, 1, 1, 1, 1, 4], [0, 0.000233307, 0.000454604, 0.000664648, 0.000862076, 0.001048719, 0.001223511, 0.001388199, 0.001543075], False, 3, [1, 1, 1, 1, 1, 1, 1, 1, 1, 1, 1], False), False)
sketch4.addGeometry(Part.LineSegment(V(-6.187179, -44.151923, 0), V(-6.187179, -44.482652, 0)), False)
sketch4.addGeometry(Part.BSplineCurve([V(-4.759956, -46.26859, 0), V(-4.792788, -46.198487, 0), V(-4.860616, -46.053662, 0), V(-4.98678, -45.841365, 0), V(-5.132525, -45.623706, 0), V(-5.300867, -45.402881, 0), V(-5.491311, -45.177687, 0), V(-5.702118, -44.947593, 0), V(-5.935859, -44.714526, 0), V(-6.101847, -44.561381, 0), V(-6.187179, -44.482652, 0)], [4, 1, 1, 1, 1, 1, 1, 1, 4], [0, 0.000232111, 0.000479514, 0.000739881, 0.001017698, 0.001312003, 0.001624408, 0.001953613, 0.002301902], False, 3, [1, 1, 1, 1, 1, 1, 1, 1, 1, 1, 1], False), False)
sketch4.addGeometry(Part.LineSegment(V(-4.759956, -46.26859, 0), V(-4.574239, -46.26859, 0)), False)
sketch4.addConstraint(Sketcher.Constraint("Block", 20))
sketch4.addConstraint(Sketcher.Constraint("Block", 22))
sketch4.addConstraint(Sketcher.Constraint("Block", 26))
sketch4.addConstraint(Sketcher.Constraint("Block", 28))
sketch4.addConstraint(Sketcher.Constraint("Coincident", 0, 2, 1, 1))
sketch4.addConstraint(Sketcher.Constraint("Coincident", 1, 2, 2, 1))
sketch4.addConstraint(Sketcher.Constraint("Coincident", 2, 2, 3, 1))
sketch4.addConstraint(Sketcher.Constraint("Coincident", 3, 2, 4, 1))
sketch4.addConstraint(Sketcher.Constraint("Coincident", 4, 2, 5, 1))
sketch4.addConstraint(Sketcher.Constraint("Coincident", 5, 2, 6, 1))
sketch4.addConstraint(Sketcher.Constraint("Coincident", 6, 2, 7, 1))
sketch4.addConstraint(Sketcher.Constraint("Coincident", 7, 2, 8, 1))
sketch4.addConstraint(Sketcher.Constraint("Coincident", 8, 2, 9, 1))
sketch4.addConstraint(Sketcher.Constraint("Coincident", 9, 2, 10, 1))
sketch4.addConstraint(Sketcher.Constraint("Coincident", 10, 2, 11, 1))
sketch4.addConstraint(Sketcher.Constraint("Coincident", 11, 2, 0, 1))
sketch4.addConstraint(Sketcher.Constraint("Coincident", 12, 2, 13, 1))
sketch4.addConstraint(Sketcher.Constraint("Coincident", 13, 2, 14, 1))
sketch4.addConstraint(Sketcher.Constraint("Coincident", 14, 2, 15, 1))
sketch4.addConstraint(Sketcher.Constraint("Coincident", 15, 2, 16, 1))
sketch4.addConstraint(Sketcher.Constraint("Coincident", 16, 2, 17, 1))
sketch4.addConstraint(Sketcher.Constraint("Coincident", 17, 2, 18, 1))
sketch4.addConstraint(Sketcher.Constraint("Coincident", 18, 2, 19, 1))
sketch4.addConstraint(Sketcher.Constraint("Coincident", 19, 2, 12, 1))
sketch4.addConstraint(Sketcher.Constraint("Coincident", 20, 1, 21, 1))
sketch4.addConstraint(Sketcher.Constraint("Coincident", 21, 2, 22, 2))
sketch4.addConstraint(Sketcher.Constraint("Coincident", 22, 1, 23, 1))
sketch4.addConstraint(Sketcher.Constraint("Coincident", 23, 2, 24, 1))
sketch4.addConstraint(Sketcher.Constraint("Coincident", 24, 2, 25, 1))
sketch4.addConstraint(Sketcher.Constraint("Coincident", 25, 2, 26, 2))
sketch4.addConstraint(Sketcher.Constraint("Coincident", 26, 1, 27, 1))
sketch4.addConstraint(Sketcher.Constraint("Coincident", 27, 2, 28, 2))
sketch4.addConstraint(Sketcher.Constraint("Coincident", 28, 1, 29, 1))
sketch4.addConstraint(Sketcher.Constraint("Coincident", 29, 2, 20, 2))
sketch4.addConstraint(Sketcher.Constraint("Vertical", 0))
sketch4.addConstraint(Sketcher.Constraint("Horizontal", 1))
sketch4.addConstraint(Sketcher.Constraint("Vertical", 2))
sketch4.addConstraint(Sketcher.Constraint("Horizontal", 3))
sketch4.addConstraint(Sketcher.Constraint("Vertical", 4))
sketch4.addConstraint(Sketcher.Constraint("Horizontal", 5))
sketch4.addConstraint(Sketcher.Constraint("Vertical", 6))
sketch4.addConstraint(Sketcher.Constraint("Horizontal", 7))
sketch4.addConstraint(Sketcher.Constraint("Vertical", 8))
sketch4.addConstraint(Sketcher.Constraint("Horizontal", 9))
sketch4.addConstraint(Sketcher.Constraint("Vertical", 10))
sketch4.addConstraint(Sketcher.Constraint("Horizontal", 11))
sketch4.addConstraint(Sketcher.Constraint("Vertical", 12))
sketch4.addConstraint(Sketcher.Constraint("Horizontal", 13))
sketch4.addConstraint(Sketcher.Constraint("Horizontal", 15))
sketch4.addConstraint(Sketcher.Constraint("Vertical", 16))
sketch4.addConstraint(Sketcher.Constraint("Horizontal", 17))
sketch4.addConstraint(Sketcher.Constraint("Horizontal", 19))
sketch4.addConstraint(Sketcher.Constraint("Vertical", 23))
sketch4.addConstraint(Sketcher.Constraint("Horizontal", 24))
sketch4.addConstraint(Sketcher.Constraint("Vertical", 25))
sketch4.addConstraint(Sketcher.Constraint("Parallel", 14, 18))
sketch4.addConstraint(Sketcher.Constraint("Horizontal", 3, 2, 6, 2))
sketch4.addConstraint(Sketcher.Constraint("Horizontal", 1, 2, 8, 2))
sketch4.addConstraint(Sketcher.Constraint("Vertical", 0, 2, 3, 2))
sketch4.addConstraint(Sketcher.Constraint("Vertical", 6, 2, 9, 2))
sketch4.addConstraint(Sketcher.Constraint("Equal", 3, 7))
sketch4.addConstraint(Sketcher.Constraint("Equal", 9, 0))
sketch4.addConstraint(Sketcher.Constraint("Equal", 11, 2))
sketch4.addConstraint(Sketcher.Constraint("Equal", 0, 4))
sketch4.addConstraint(Sketcher.Constraint("Equal", 12, 16))
sketch4.addConstraint(Sketcher.Constraint("DistanceY", 14, 2, -1, 1, Q("40 mm")))
sketch4.addConstraint(Sketcher.Constraint("DistanceY", 18, 2, -1, 1, Q("46.35 mm")))
sketch4.addConstraint(Sketcher.Constraint("DistanceX", 14, 2, 4, 2, Q("3.175 mm")))
sketch4.addConstraint(Sketcher.Constraint("DistanceX", 15, 2, 13, 2, Q("0.836999 mm")))
sketch4.addConstraint(Sketcher.Constraint("Distance", 14, Q("6.290499 mm")))
sketch4.addConstraint(Sketcher.Constraint("DistanceX", 5, 2, 5, 1, Q("0.569872 mm")))
sketch4.addConstraint(Sketcher.Constraint("DistanceX", 13, 2, 13, 1, Q("2.419411 mm")))
sketch4.addConstraint(Sketcher.Constraint("DistanceX", 15, 2, 15, 1, Q("3.500641 mm")))
sketch4.addConstraint(Sketcher.Constraint("DistanceX", 17, 1, 17, 2, Q("2.582232 mm")))
sketch4.addConstraint(Sketcher.Constraint("DistanceY", 23, 1, 23, 2, Q("6.838462 mm")))
sketch4.addConstraint(Sketcher.Constraint("DistanceX", 17, 2, 7, 2, Q("1.651102 mm")))
sketch4.addConstraint(Sketcher.Constraint("DistanceY", 0, 2, -1, 1, Q("43.419231 mm")))
sketch4.addConstraint(Sketcher.Constraint("DistanceX", -1, 1, 1, 2, Q("6.512821 mm")))
pocket2 = doc.addObject("PartDesign::Pocket", "Pocket001")
body.addObject(pocket2)
pocket2.Profile = sketch4
pocket2.Length = 0.5

sketch5 = doc.addObject("Sketcher::SketchObject", "Sketch004")
body.addObject(sketch5)
sketch5.AttachmentSupport = (doc.XZ_Plane, [""])
sketch5.MapMode = "FlatFace"
sketch5.AttachmentOffset = App.Placement(V(0, 0, -2.23), App.Rotation())
sketch5.addGeometry(Part.LineSegment(V(-28.9, 39.2, 0), V(-28.9, 41.2, 0)), False)
sketch5.addGeometry(Part.LineSegment(V(-28.9, 41.2, 0), V(-21.5, 41.2, 0)), False)
sketch5.addGeometry(Part.LineSegment(V(-21.5, 41.2, 0), V(-21.5, 39.2, 0)), False)
sketch5.addGeometry(Part.LineSegment(V(-21.5, 39.2, 0), V(-28.9, 39.2, 0)), False)
sketch5.addGeometry(Part.LineSegment(V(21.5, 39.2, 0), V(21.5, 41.2, 0)), False)
sketch5.addGeometry(Part.LineSegment(V(21.5, 41.2, 0), V(28.9, 41.2, 0)), False)
sketch5.addGeometry(Part.LineSegment(V(28.9, 41.2, 0), V(28.9, 39.2, 0)), False)
sketch5.addGeometry(Part.LineSegment(V(28.9, 39.2, 0), V(21.5, 39.2, 0)), False)
sketch5.addConstraint(Sketcher.Constraint("Coincident", 0, 2, 1, 1))
sketch5.addConstraint(Sketcher.Constraint("Coincident", 1, 2, 2, 1))
sketch5.addConstraint(Sketcher.Constraint("Coincident", 2, 2, 3, 1))
sketch5.addConstraint(Sketcher.Constraint("Coincident", 3, 2, 0, 1))
sketch5.addConstraint(Sketcher.Constraint("Coincident", 4, 2, 5, 1))
sketch5.addConstraint(Sketcher.Constraint("Coincident", 5, 2, 6, 1))
sketch5.addConstraint(Sketcher.Constraint("Coincident", 6, 2, 7, 1))
sketch5.addConstraint(Sketcher.Constraint("Coincident", 7, 2, 4, 1))
sketch5.addConstraint(Sketcher.Constraint("Vertical", 0))
sketch5.addConstraint(Sketcher.Constraint("Horizontal", 1))
sketch5.addConstraint(Sketcher.Constraint("Vertical", 2))
sketch5.addConstraint(Sketcher.Constraint("Horizontal", 3))
sketch5.addConstraint(Sketcher.Constraint("Vertical", 4))
sketch5.addConstraint(Sketcher.Constraint("Horizontal", 5))
sketch5.addConstraint(Sketcher.Constraint("Vertical", 6))
sketch5.addConstraint(Sketcher.Constraint("Horizontal", 7))
sketch5.addConstraint(Sketcher.Constraint("Symmetric", 1, 2, 4, 2, -2))
sketch5.addConstraint(Sketcher.Constraint("Symmetric", 3, 2, 6, 2, -2))
sketch5.addConstraint(Sketcher.Constraint("DistanceY", 0, 1, 0, 2, Q("2 mm")))
sketch5.addConstraint(Sketcher.Constraint("DistanceX", 1, 1, 1, 2, Q("7.4 mm")))
sketch5.addConstraint(Sketcher.Constraint("DistanceX", 1, 2, 4, 2, Q("43 mm")))
sketch5.addConstraint(Sketcher.Constraint("DistanceY", -1, 1, 0, 2, Q("41.25 mm")))
pad3 = doc.addObject("PartDesign::Pad", "Pad002")
body.addObject(pad3)
pad3.Profile = sketch5
pad3.Length = 3
pad3.Reversed = True

doc.recompute()
